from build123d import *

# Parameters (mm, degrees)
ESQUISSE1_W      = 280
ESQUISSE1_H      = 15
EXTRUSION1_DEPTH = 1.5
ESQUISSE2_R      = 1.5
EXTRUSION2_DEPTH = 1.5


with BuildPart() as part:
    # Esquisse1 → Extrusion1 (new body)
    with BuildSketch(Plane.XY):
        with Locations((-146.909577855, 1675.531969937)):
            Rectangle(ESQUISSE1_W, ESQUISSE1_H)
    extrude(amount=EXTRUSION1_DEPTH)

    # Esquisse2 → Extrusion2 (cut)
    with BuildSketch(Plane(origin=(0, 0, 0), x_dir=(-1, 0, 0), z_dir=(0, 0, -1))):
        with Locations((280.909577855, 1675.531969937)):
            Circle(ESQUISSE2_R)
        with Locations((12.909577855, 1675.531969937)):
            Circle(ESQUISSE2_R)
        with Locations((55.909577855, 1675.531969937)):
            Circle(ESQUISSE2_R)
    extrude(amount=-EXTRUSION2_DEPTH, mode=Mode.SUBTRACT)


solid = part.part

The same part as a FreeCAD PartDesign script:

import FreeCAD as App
import Part
import Sketcher
from FreeCAD import Vector

doc = App.newDocument("Part")
params = doc.addObject("Spreadsheet::Sheet", "Params")
for row, (alias, value) in enumerate([
    ("sketch1_width", "280 mm"),
    ("sketch1_height", "15 mm"),
    ("pad1_length", "1.5 mm"),
    ("sketch2_diameter", "3 mm"),
    ("pocket1_length", "1.5 mm"),
], start=1):
    params.set(f"A{row}", alias)
    params.set(f"B{row}", "=" + value)
    params.setAlias(f"B{row}", alias)

body = doc.addObject("PartDesign::Body", "Body")

sketch1 = body.newObject("Sketcher::SketchObject", "Sketch")
sketch1.AttachmentSupport = (doc.getObject("XY_Plane"), [""])
sketch1.MapMode = "FlatFace"
sketch1.addGeometry(Part.LineSegment(Vector(-287, 1683, 0), Vector(-287, 1668, 0)), False)
sketch1.addGeometry(Part.LineSegment(Vector(-287, 1668, 0), Vector(-7, 1668, 0)), False)
sketch1.addGeometry(Part.LineSegment(Vector(-7, 1668, 0), Vector(-7, 1683, 0)), False)
sketch1.addGeometry(Part.LineSegment(Vector(-7, 1683, 0), Vector(-287, 1683, 0)), False)
sketch1.addConstraint(Sketcher.Constraint("Coincident", 0, 2, 1, 1))
sketch1.addConstraint(Sketcher.Constraint("Coincident", 1, 2, 2, 1))
sketch1.addConstraint(Sketcher.Constraint("Coincident", 2, 2, 3, 1))
sketch1.addConstraint(Sketcher.Constraint("Coincident", 3, 2, 0, 1))
sketch1.addConstraint(Sketcher.Constraint("Vertical", 0))
sketch1.addConstraint(Sketcher.Constraint("Horizontal", 1))
sketch1.addConstraint(Sketcher.Constraint("Vertical", 2))
sketch1.addConstraint(Sketcher.Constraint("Horizontal", 3))
sketch1.addConstraint(Sketcher.Constraint("DistanceX", 1, 1, 1, 2, 280.0))
sketch1.addConstraint(Sketcher.Constraint("DistanceY", 0, 2, 0, 1, 15.0))
sketch1.addConstraint(Sketcher.Constraint("DistanceY", -1, 1, 0, 2, 1668.03197))
sketch1.addConstraint(Sketcher.Constraint("DistanceX", 0, 2, -1, 1, 286.909578))
sketch1.setExpression("Constraints[8]", "Params.sketch1_width")
sketch1.setExpression("Constraints[9]", "Params.sketch1_height")
pad1 = body.newObject("PartDesign::Pad", "Pad")
pad1.Profile = sketch1
pad1.setExpression("Length", "Params.pad1_length")

sketch2 = body.newObject("Sketcher::SketchObject", "Sketch001")
sketch2.AttachmentSupport = (doc.getObject("XY_Plane"), [""])
sketch2.MapMode = "FlatFace"
sketch2.addGeometry(Part.Circle(Vector(-280.9, 1675.5, 0), Vector(0, 0, 1), 1.5), False)
sketch2.addGeometry(Part.Circle(Vector(-12.9, 1675.5, 0), Vector(0, 0, 1), 1.5), False)
sketch2.addGeometry(Part.Circle(Vector(-55.9, 1675.5, 0), Vector(0, 0, 1), 1.5), False)
sketch2.addConstraint(Sketcher.Constraint("Equal", 0, 1))
sketch2.addConstraint(Sketcher.Constraint("Equal", 1, 2))
sketch2.addConstraint(Sketcher.Constraint("Horizontal", 0, 3, 1, 3))
sketch2.addConstraint(Sketcher.Constraint("Horizontal", 1, 3, 2, 3))
sketch2.addConstraint(Sketcher.Constraint("Diameter", 0, 3.0))
sketch2.addConstraint(Sketcher.Constraint("DistanceX", 0, 3, 1, 3, 268.0))
sketch2.addConstraint(Sketcher.Constraint("DistanceX", 2, 3, 1, 3, 43.0))
sketch2.addConstraint(Sketcher.Constraint("DistanceY", -1, 1, 0, 3, 1675.53197))
sketch2.addConstraint(Sketcher.Constraint("DistanceX", 0, 3, -1, 1, 280.909578))
sketch2.setExpression("Constraints[4]", "Params.sketch2_diameter")
pocket1 = body.newObject("PartDesign::Pocket", "Pocket")
pocket1.Profile = sketch2
pocket1.setExpression("Length", "Params.pocket1_length")
pocket1.Reversed = True

doc.recompute()
